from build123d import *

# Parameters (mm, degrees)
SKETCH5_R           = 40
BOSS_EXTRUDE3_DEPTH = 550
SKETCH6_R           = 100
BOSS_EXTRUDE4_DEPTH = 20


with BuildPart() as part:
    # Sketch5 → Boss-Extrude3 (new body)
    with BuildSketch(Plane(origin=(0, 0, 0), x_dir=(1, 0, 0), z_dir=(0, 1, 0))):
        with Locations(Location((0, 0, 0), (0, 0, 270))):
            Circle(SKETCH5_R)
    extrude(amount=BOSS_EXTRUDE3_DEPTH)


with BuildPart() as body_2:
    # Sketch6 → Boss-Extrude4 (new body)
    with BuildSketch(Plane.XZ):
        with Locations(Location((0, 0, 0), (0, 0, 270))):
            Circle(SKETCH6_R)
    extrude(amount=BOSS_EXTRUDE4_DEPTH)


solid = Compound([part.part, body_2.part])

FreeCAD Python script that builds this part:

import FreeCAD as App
import Part
import Sketcher

doc = App.newDocument("Part")
body = doc.addObject("PartDesign::Body", "Body")

sketch1 = body.newObject("Sketcher::SketchObject", "Sketch")
sketch1.AttachmentSupport = (doc.getObject("XZ_Plane"), [""])
sketch1.MapMode = "FlatFace"
sketch1.addGeometry(Part.Circle(App.Vector(0, 0, 0), App.Vector(0, 0, 1), 40), False)
sketch1.addConstraint(Sketcher.Constraint("Coincident", 0, 3, -1, 1))
sketch1.addConstraint(Sketcher.Constraint("Diameter", 0, 80.0))
pad1 = body.newObject("PartDesign::Pad", "Pad")
pad1.Profile = sketch1
pad1.Length = 550
pad1.Reversed = True
body2 = doc.addObject("PartDesign::Body", "Body001")

sketch2 = body2.newObject("Sketcher::SketchObject", "Sketch001")
sketch2.AttachmentSupport = (doc.getObject("XZ_Plane001"), [""])
sketch2.MapMode = "FlatFace"
sketch2.addGeometry(Part.Circle(App.Vector(0, 0, 0), App.Vector(0, 0, 1), 100), False)
sketch2.addConstraint(Sketcher.Constraint("Coincident", 0, 3, -1, 1))
sketch2.addConstraint(Sketcher.Constraint("Diameter", 0, 200.0))
pad2 = body2.newObject("PartDesign::Pad", "Pad001")
pad2.Profile = sketch2
pad2.Length = 20

doc.recompute()
